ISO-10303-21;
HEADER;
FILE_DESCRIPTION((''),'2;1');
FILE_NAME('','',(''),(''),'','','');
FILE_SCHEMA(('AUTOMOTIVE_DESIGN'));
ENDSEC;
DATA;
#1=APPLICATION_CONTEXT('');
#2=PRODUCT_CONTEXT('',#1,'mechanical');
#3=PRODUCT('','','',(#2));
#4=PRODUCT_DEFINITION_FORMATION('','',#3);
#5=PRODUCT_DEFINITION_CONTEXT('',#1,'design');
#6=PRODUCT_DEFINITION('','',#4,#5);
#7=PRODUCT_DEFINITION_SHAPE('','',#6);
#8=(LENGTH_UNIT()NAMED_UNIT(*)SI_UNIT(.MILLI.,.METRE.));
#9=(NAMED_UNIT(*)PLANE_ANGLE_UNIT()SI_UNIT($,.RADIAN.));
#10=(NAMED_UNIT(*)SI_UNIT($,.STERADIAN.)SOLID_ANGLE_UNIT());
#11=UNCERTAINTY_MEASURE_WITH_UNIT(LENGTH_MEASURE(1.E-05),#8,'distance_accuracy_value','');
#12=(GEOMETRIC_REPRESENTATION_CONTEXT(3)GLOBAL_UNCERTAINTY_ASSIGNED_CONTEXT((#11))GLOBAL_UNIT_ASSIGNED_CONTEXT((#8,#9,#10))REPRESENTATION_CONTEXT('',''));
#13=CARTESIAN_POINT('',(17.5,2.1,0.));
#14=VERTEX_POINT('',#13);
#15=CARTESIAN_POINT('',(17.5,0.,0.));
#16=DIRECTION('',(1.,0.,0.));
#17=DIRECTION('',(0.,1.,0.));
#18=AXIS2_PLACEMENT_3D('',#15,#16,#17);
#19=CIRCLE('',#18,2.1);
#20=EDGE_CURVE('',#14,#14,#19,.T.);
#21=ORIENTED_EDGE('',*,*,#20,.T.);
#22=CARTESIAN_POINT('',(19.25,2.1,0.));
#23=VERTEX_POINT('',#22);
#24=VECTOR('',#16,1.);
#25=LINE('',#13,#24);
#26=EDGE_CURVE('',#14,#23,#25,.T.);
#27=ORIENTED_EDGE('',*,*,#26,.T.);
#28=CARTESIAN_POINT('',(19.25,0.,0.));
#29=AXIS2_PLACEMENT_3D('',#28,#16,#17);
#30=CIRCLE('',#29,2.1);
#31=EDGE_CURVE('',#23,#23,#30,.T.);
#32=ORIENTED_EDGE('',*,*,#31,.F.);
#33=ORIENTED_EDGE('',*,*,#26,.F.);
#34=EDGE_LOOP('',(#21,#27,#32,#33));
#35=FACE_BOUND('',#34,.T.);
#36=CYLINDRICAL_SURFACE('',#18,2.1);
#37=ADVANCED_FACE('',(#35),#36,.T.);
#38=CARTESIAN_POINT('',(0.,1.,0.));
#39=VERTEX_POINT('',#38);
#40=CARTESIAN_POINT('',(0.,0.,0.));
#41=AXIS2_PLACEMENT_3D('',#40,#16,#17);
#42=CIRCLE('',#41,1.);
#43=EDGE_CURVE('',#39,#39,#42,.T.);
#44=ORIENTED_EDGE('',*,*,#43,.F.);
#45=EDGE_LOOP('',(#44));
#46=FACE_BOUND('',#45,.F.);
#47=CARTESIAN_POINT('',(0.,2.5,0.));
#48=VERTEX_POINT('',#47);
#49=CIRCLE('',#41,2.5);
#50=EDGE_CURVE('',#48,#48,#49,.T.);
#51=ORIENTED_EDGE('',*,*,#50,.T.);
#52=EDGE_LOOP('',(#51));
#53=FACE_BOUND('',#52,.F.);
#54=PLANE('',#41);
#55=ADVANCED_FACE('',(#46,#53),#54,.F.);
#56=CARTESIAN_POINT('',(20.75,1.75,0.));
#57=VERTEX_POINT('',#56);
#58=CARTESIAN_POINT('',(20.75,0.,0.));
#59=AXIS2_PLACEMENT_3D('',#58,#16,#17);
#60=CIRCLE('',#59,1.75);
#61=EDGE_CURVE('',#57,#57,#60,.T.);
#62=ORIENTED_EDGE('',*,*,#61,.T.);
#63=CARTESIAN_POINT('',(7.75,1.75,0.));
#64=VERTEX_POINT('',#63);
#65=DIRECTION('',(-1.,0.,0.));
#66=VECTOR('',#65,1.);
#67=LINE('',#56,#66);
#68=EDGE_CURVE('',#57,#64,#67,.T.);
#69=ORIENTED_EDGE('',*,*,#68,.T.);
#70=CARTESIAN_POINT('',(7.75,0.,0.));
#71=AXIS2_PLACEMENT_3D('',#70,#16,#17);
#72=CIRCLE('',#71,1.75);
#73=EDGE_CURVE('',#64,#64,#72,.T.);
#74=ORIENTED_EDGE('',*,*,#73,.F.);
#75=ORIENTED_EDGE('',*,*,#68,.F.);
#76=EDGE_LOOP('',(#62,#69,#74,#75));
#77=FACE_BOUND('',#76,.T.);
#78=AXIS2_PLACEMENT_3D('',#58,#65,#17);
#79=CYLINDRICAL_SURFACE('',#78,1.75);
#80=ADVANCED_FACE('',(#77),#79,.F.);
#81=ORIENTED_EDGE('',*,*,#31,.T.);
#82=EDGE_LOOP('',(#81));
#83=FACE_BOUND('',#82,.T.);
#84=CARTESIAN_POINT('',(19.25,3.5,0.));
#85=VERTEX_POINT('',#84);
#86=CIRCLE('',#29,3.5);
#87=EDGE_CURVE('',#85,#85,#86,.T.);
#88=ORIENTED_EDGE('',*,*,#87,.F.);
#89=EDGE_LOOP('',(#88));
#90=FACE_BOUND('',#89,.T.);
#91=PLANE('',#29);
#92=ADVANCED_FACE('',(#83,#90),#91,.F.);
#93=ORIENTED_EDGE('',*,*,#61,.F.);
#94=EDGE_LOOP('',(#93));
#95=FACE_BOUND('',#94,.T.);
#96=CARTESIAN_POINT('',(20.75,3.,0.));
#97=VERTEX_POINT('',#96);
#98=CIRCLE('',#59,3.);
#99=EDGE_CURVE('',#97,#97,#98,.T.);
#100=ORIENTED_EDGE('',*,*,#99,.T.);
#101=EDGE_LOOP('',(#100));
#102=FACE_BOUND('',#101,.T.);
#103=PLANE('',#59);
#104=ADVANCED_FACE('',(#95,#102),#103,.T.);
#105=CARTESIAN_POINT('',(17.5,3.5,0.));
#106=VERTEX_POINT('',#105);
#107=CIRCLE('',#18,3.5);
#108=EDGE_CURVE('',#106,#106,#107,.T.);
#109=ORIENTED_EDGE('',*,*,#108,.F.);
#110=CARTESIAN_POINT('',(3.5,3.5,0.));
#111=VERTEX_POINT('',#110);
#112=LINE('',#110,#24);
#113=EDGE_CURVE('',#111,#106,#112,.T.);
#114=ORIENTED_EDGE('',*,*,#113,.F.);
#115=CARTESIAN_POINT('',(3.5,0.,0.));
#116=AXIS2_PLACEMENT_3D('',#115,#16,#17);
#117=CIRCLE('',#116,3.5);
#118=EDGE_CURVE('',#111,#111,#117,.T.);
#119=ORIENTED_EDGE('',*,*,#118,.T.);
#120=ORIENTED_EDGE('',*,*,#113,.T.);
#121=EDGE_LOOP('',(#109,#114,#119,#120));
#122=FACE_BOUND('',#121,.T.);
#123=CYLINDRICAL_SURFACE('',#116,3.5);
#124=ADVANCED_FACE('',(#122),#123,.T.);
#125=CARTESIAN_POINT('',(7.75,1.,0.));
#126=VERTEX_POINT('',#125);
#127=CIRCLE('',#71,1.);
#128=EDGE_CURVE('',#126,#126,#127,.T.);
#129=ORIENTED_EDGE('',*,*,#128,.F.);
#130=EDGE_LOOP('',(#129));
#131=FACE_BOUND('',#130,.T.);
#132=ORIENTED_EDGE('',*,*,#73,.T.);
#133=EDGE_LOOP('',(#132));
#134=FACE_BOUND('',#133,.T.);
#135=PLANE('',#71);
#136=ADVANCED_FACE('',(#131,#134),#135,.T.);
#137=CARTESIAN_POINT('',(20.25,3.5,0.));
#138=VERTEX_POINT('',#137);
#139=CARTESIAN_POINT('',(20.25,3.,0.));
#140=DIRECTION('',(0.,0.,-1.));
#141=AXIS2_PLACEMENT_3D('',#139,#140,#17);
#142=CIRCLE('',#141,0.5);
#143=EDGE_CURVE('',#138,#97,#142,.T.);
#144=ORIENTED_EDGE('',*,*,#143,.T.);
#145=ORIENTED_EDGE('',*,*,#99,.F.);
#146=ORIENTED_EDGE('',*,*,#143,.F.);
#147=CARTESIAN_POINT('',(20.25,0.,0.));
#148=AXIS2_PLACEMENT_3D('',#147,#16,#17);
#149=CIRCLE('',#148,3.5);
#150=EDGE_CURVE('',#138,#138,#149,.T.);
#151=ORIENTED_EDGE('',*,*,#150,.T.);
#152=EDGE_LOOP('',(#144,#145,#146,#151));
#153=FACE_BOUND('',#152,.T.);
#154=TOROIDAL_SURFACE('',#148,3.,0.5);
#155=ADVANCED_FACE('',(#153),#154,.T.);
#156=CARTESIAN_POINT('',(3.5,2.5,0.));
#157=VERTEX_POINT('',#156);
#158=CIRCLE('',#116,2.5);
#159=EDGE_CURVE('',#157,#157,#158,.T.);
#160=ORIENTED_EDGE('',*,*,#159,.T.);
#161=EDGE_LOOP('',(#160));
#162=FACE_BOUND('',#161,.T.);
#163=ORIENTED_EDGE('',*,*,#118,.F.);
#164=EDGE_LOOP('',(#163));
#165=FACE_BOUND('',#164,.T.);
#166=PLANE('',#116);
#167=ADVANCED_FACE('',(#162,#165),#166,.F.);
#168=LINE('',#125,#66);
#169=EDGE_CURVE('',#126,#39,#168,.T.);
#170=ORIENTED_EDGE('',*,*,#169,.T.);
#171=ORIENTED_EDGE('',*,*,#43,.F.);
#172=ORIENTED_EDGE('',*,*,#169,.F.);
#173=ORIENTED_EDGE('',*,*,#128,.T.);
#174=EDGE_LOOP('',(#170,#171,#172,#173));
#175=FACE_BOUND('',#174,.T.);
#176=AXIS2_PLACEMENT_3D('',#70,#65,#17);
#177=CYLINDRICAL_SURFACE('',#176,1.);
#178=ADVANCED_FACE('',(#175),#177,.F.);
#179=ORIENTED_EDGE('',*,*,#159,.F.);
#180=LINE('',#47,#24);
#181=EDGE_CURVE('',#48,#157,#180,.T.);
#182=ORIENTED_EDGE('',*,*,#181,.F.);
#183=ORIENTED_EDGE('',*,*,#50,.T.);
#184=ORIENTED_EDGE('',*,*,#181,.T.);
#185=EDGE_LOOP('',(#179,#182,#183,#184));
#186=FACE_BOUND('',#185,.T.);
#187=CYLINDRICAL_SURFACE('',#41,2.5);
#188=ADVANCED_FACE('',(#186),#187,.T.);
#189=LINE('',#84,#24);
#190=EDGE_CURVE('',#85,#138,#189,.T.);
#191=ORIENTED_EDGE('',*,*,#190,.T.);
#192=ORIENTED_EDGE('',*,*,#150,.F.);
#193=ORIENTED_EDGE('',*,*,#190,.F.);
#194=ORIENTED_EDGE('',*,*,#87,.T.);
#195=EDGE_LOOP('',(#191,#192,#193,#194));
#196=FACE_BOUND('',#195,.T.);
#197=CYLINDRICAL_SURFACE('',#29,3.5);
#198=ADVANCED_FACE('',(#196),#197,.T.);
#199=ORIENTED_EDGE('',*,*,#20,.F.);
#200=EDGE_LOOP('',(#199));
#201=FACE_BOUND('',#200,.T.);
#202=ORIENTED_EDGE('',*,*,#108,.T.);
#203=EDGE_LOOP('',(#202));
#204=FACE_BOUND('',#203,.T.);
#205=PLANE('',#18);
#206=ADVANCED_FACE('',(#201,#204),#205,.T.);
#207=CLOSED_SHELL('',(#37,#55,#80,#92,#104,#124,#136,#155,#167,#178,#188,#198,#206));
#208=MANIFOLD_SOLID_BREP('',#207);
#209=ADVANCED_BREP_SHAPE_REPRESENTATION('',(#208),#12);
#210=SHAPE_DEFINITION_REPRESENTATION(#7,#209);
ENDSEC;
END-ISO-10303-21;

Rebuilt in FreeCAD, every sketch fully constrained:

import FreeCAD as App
import Part
import Sketcher
Q = App.Units.Quantity


def edges_at(feature, points):
    """Names of the edges that pass closest to the given points."""
    edges = feature.Shape.Edges
    near = lambda p: min(range(len(edges)), key=lambda i: edges[i].distToShape(Part.Vertex(*p))[0])
    return sorted({f"Edge{near(p) + 1}" for p in points})


def add_polygon(sketch, points):
    """Adds a closed chain of lines whose ends are joined by coincident constraints."""
    first, n = sketch.GeometryCount, len(points)
    for a, b in zip(points, points[1:] + points[:1]):
        sketch.addGeometry(Part.LineSegment(App.Vector(*a, 0), App.Vector(*b, 0)), False)
    for i in range(n):
        sketch.addConstraint(Sketcher.Constraint("Coincident", first + i, 2, first + (i + 1) % n, 1))

doc = App.newDocument("Part")
body = doc.addObject("PartDesign::Body", "Body")

# Sketch on XY plane
sketch1 = body.newObject("Sketcher::SketchObject", "Sketch")
sketch1.AttachmentSupport = (doc.getObject("XY_Plane"), [""])
sketch1.MapMode = "FlatFace"
add_polygon(sketch1, [(3.5, 2.5), (0, 2.5), (0, 1), (7.8, 1), (7.8, 1.8), (20.8, 1.8), (20.8, 3.5), (19.2, 3.5), (19.2, 2.1), (17.5, 2.1), (17.5, 3.5), (3.5, 3.5)])  # lines 0-11
sketch1.addConstraint(Sketcher.Constraint("Horizontal", 0))
sketch1.addConstraint(Sketcher.Constraint("Vertical", 1))
sketch1.addConstraint(Sketcher.Constraint("Horizontal", 2))
sketch1.addConstraint(Sketcher.Constraint("Vertical", 3))
sketch1.addConstraint(Sketcher.Constraint("Horizontal", 4))
sketch1.addConstraint(Sketcher.Constraint("Vertical", 5))
sketch1.addConstraint(Sketcher.Constraint("Horizontal", 6))
sketch1.addConstraint(Sketcher.Constraint("Vertical", 7))
sketch1.addConstraint(Sketcher.Constraint("Horizontal", 8))
sketch1.addConstraint(Sketcher.Constraint("Vertical", 9))
sketch1.addConstraint(Sketcher.Constraint("Horizontal", 10))
sketch1.addConstraint(Sketcher.Constraint("Vertical", 11))
sketch1.addConstraint(Sketcher.Constraint("PointOnObject", 0, 2, -2))
sketch1.addConstraint(Sketcher.Constraint("Horizontal", 6, 2, 9, 2))
sketch1.addConstraint(Sketcher.Constraint("Equal", 6, 1))
sketch1.addConstraint(Sketcher.Constraint("Equal", 8, 5))
sketch1.addConstraint(Sketcher.Constraint("DistanceX", 4, 1, 4, 2, Q("13 mm")))
sketch1.addConstraint(Sketcher.Constraint("DistanceX", 10, 2, 10, 1, Q("14 mm")))
sketch1.addConstraint(Sketcher.Constraint("DistanceY", 11, 2, 11, 1, Q("1 mm")))
sketch1.addConstraint(Sketcher.Constraint("DistanceX", 0, 2, 0, 1, Q("3.5 mm")))
sketch1.addConstraint(Sketcher.Constraint("DistanceX", 6, 2, 6, 1, Q("1.5 mm")))
sketch1.addConstraint(Sketcher.Constraint("DistanceY", -1, 1, 1, 2, Q("1 mm")))
sketch1.addConstraint(Sketcher.Constraint("DistanceX", 8, 2, 8, 1, Q("1.75 mm")))
sketch1.addConstraint(Sketcher.Constraint("DistanceY", -1, 1, 7, 2, Q("2.1 mm")))
revolution = body.newObject("PartDesign::Revolution", "Revolution")
revolution.Profile = sketch1
revolution.ReferenceAxis = (sketch1, ["H_Axis"])
revolution.Angle = 360
doc.recompute()

fillet = body.newObject("PartDesign::Fillet", "Fillet")
fillet.Base = (revolution, edges_at(revolution, [(20.75, -3.5, 0)]))
fillet.Radius = 0.5

doc.recompute()
